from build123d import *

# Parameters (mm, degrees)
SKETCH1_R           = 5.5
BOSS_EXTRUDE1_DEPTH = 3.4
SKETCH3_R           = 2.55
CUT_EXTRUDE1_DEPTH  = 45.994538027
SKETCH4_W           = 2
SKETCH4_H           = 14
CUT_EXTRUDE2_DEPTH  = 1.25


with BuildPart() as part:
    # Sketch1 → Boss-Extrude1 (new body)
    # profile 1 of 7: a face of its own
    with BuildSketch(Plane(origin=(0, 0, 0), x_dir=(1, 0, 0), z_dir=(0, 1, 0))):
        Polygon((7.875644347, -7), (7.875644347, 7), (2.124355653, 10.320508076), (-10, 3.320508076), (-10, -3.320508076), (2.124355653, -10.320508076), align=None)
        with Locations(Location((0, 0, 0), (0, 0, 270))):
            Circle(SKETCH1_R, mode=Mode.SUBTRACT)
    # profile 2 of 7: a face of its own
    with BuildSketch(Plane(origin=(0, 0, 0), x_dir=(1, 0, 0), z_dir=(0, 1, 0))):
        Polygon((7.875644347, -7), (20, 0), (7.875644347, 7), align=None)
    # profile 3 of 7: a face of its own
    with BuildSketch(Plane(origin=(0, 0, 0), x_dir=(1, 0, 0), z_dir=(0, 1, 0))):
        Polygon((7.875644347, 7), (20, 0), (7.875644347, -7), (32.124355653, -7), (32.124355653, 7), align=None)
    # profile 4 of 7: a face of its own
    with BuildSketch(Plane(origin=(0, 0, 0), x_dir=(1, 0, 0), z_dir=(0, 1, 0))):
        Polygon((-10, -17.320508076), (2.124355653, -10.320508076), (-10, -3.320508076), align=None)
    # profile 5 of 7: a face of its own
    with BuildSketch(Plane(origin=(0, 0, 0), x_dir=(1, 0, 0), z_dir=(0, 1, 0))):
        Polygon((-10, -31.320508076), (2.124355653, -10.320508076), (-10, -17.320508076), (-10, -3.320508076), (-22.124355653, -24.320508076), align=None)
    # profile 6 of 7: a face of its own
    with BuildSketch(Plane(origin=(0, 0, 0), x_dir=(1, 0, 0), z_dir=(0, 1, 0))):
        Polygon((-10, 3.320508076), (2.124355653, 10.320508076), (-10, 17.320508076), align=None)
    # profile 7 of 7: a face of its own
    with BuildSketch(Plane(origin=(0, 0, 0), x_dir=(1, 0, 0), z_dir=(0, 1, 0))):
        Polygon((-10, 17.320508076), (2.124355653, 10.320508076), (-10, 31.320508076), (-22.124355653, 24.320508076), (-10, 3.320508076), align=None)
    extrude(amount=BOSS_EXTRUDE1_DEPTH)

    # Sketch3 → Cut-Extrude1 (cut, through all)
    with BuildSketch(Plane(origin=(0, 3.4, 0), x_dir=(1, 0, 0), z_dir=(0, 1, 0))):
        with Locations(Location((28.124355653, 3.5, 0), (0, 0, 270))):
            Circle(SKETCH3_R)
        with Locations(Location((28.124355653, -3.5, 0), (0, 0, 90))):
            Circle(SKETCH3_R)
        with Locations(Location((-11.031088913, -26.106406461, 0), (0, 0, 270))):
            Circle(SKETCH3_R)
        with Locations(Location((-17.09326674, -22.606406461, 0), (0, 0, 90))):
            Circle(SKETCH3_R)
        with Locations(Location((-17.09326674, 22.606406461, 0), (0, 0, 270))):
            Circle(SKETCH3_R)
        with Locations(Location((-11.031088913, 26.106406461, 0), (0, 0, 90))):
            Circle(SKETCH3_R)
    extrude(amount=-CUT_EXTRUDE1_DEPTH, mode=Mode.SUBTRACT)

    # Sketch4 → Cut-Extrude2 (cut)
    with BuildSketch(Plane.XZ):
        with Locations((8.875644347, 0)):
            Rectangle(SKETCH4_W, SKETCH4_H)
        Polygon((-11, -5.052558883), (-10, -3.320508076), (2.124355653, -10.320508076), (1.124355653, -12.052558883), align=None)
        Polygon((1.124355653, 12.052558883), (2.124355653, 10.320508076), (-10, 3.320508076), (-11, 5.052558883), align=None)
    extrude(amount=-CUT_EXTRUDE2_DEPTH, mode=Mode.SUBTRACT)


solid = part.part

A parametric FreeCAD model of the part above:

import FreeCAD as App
import Part
import Sketcher

V = App.Vector
Q = App.Units.Quantity


def add_polygon(sketch, points):
    """Adds a closed chain of lines whose ends are joined by coincident constraints."""
    first, n = sketch.GeometryCount, len(points)
    for a, b in zip(points, points[1:] + points[:1]):
        sketch.addGeometry(Part.LineSegment(App.Vector(*a, 0), App.Vector(*b, 0)), False)
    for i in range(n):
        sketch.addConstraint(Sketcher.Constraint("Coincident", first + i, 2, first + (i + 1) % n, 1))

doc = App.newDocument("Part")
body = doc.addObject("PartDesign::Body", "Body")

# Sketch on XZ plane
sketch1 = body.newObject("Sketcher::SketchObject", "Sketch")
sketch1.AttachmentSupport = (doc.getObject("XZ_Plane"), [""])
sketch1.MapMode = "FlatFace"
add_polygon(sketch1, [(2, 10), (8, 7), (32, 7), (32, -7), (8, -7), (2, -10), (-10, -31), (-22, -24), (-10, -3), (-10, 3), (-22, 24), (-10, 31)])  # lines 0-11
sketch1.addGeometry(Part.Circle(V(0, 0, 0), V(0, 0, 1), 6), False)  # 12
sketch1.addConstraint([
    Sketcher.Constraint("Horizontal", 1),
    Sketcher.Constraint("Vertical", 2),
    Sketcher.Constraint("Horizontal", 3),
    Sketcher.Constraint("Vertical", 8),
    Sketcher.Constraint("Coincident", 12, 3, -1, 1),
    Sketcher.Constraint("Symmetric", 0, 2, 3, 2, -1),
    Sketcher.Constraint("Symmetric", 6, 2, 9, 2, -1),
    Sketcher.Constraint("Symmetric", 5, 2, 10, 2, -1),
    Sketcher.Constraint("Symmetric", 4, 2, 11, 2, -1),
    Sketcher.Constraint("Perpendicular", 0, 5),
    Sketcher.Constraint("Perpendicular", 5, 6),
    Sketcher.Constraint("Perpendicular", 6, 7),
    Sketcher.Constraint("Perpendicular", 4, 9),
    Sketcher.Constraint("Vertical", 5, 2, 7, 2),
    Sketcher.Constraint("Equal", 5, 7),
    Sketcher.Constraint("Diameter", 12, Q("11 mm")),
    Sketcher.Constraint("DistanceY", 2, 2, 2, 1, Q("14 mm")),
    Sketcher.Constraint("Angle", 0, Q("-30 deg")),
    Sketcher.Constraint("Distance", 6, Q("14 mm")),
    Sketcher.Constraint("DistanceX", 5, 2, -1, 1, Q("10 mm")),
    Sketcher.Constraint("DistanceX", 4, 2, 2, 2, Q("30 mm")),
    Sketcher.Constraint("DistanceX", 6, 2, 3, 2, Q("30 mm")),
])
pad1 = body.newObject("PartDesign::Pad", "Pad")
pad1.Profile = sketch1
pad1.Length = 3.4
pad1.Reversed = True

# Sketch on XZ plane
sketch2 = body.newObject("Sketcher::SketchObject", "Sketch001")
sketch2.AttachmentSupport = (doc.getObject("XZ_Plane"), [""])
sketch2.MapMode = "FlatFace"
sketch2.AttachmentOffset = App.Placement(V(0, 0, -3.4), App.Rotation())
sketch2.addGeometry([
    Part.Circle(V(28.1, -3.5, 0), V(0, 0, 1), 2.5),  # 0
    Part.Circle(V(28.1, 3.5, 0), V(0, 0, 1), 2.5),  # 1
    Part.Circle(V(-11, 26.1, 0), V(0, 0, 1), 2.5),  # 2
    Part.Circle(V(-17.1, 22.6, 0), V(0, 0, 1), 2.5),  # 3
    Part.Circle(V(-17.1, -22.6, 0), V(0, 0, 1), 2.5),  # 4
    Part.Circle(V(-11, -26.1, 0), V(0, 0, 1), 2.5),  # 5
], False)
sketch2.addConstraint([
    Sketcher.Constraint("Equal", 0, 1),
    Sketcher.Constraint("Equal", 1, 2),
    Sketcher.Constraint("Equal", 2, 3),
    Sketcher.Constraint("Equal", 3, 4),
    Sketcher.Constraint("Equal", 4, 5),
    Sketcher.Constraint("Symmetric", 0, 3, 1, 3, -1),
    Sketcher.Constraint("Symmetric", 3, 3, 4, 3, -1),
    Sketcher.Constraint("Symmetric", 2, 3, 5, 3, -1),
    Sketcher.Constraint("Diameter", 0, Q("5.1 mm")),
    Sketcher.Constraint("DistanceY", 0, 3, 1, 3, Q("7 mm")),
    Sketcher.Constraint("DistanceY", 3, 3, 2, 3, Q("3.5 mm")),
    Sketcher.Constraint("DistanceX", 2, 3, -1, 1, Q("11.031089 mm")),
    Sketcher.Constraint("DistanceX", -1, 1, 0, 3, Q("28.124356 mm")),
    Sketcher.Constraint("DistanceY", -1, 1, 2, 3, Q("26.106406 mm")),
    Sketcher.Constraint("DistanceX", 3, 3, -1, 1, Q("17.093267 mm")),
])
pocket1 = body.newObject("PartDesign::Pocket", "Pocket")
pocket1.Profile = sketch2
pocket1.Type = "ThroughAll"
pocket1.Reversed = True

# Sketch on XZ plane
sketch3 = body.newObject("Sketcher::SketchObject", "Sketch002")
sketch3.AttachmentSupport = (doc.getObject("XZ_Plane"), [""])
sketch3.MapMode = "FlatFace"
add_polygon(sketch3, [(7.9, 7), (7.9, -7), (9.9, -7), (9.9, 7)])  # lines 0-3
add_polygon(sketch3, [(-10, -3.3), (-11, -5.1), (1.1, -12.1), (2.1, -10.3)])  # lines 4-7
add_polygon(sketch3, [(2.1, 10.3), (1.1, 12.1), (-11, 5.1), (-10, 3.3)])  # lines 8-11
sketch3.addConstraint([
    Sketcher.Constraint("Vertical", 0),
    Sketcher.Constraint("Horizontal", 1),
    Sketcher.Constraint("Vertical", 2),
    Sketcher.Constraint("Horizontal", 3),
    Sketcher.Constraint("Symmetric", 5, 2, 8, 2, -1),
    Sketcher.Constraint("Symmetric", 4, 2, 9, 2, -1),
    Sketcher.Constraint("Symmetric", 7, 2, 10, 2, -1),
    Sketcher.Constraint("Symmetric", 6, 2, 11, 2, -1),
    Sketcher.Constraint("Perpendicular", 4, 5),
    Sketcher.Constraint("Perpendicular", 5, 6),
    Sketcher.Constraint("Perpendicular", 6, 7),
    Sketcher.Constraint("DistanceX", 1, 1, 1, 2, Q("2 mm")),
    Sketcher.Constraint("DistanceY", 0, 2, 0, 1, Q("14 mm")),
    Sketcher.Constraint("Angle", 4, Q("-120 deg")),
    Sketcher.Constraint("Distance", 4, Q("2 mm")),
    Sketcher.Constraint("Distance", 5, Q("14 mm")),
    Sketcher.Constraint("DistanceY", 0, 2, -1, 1, Q("7 mm")),
    Sketcher.Constraint("DistanceX", 4, 2, -1, 1, Q("11 mm")),
    Sketcher.Constraint("DistanceY", 4, 2, -1, 1, Q("5.052559 mm")),
    Sketcher.Constraint("DistanceX", 5, 2, 0, 2, Q("6.751289 mm")),
])
pocket2 = body.newObject("PartDesign::Pocket", "Pocket001")
pocket2.Profile = sketch3
pocket2.Length = 1.25

doc.recompute()
